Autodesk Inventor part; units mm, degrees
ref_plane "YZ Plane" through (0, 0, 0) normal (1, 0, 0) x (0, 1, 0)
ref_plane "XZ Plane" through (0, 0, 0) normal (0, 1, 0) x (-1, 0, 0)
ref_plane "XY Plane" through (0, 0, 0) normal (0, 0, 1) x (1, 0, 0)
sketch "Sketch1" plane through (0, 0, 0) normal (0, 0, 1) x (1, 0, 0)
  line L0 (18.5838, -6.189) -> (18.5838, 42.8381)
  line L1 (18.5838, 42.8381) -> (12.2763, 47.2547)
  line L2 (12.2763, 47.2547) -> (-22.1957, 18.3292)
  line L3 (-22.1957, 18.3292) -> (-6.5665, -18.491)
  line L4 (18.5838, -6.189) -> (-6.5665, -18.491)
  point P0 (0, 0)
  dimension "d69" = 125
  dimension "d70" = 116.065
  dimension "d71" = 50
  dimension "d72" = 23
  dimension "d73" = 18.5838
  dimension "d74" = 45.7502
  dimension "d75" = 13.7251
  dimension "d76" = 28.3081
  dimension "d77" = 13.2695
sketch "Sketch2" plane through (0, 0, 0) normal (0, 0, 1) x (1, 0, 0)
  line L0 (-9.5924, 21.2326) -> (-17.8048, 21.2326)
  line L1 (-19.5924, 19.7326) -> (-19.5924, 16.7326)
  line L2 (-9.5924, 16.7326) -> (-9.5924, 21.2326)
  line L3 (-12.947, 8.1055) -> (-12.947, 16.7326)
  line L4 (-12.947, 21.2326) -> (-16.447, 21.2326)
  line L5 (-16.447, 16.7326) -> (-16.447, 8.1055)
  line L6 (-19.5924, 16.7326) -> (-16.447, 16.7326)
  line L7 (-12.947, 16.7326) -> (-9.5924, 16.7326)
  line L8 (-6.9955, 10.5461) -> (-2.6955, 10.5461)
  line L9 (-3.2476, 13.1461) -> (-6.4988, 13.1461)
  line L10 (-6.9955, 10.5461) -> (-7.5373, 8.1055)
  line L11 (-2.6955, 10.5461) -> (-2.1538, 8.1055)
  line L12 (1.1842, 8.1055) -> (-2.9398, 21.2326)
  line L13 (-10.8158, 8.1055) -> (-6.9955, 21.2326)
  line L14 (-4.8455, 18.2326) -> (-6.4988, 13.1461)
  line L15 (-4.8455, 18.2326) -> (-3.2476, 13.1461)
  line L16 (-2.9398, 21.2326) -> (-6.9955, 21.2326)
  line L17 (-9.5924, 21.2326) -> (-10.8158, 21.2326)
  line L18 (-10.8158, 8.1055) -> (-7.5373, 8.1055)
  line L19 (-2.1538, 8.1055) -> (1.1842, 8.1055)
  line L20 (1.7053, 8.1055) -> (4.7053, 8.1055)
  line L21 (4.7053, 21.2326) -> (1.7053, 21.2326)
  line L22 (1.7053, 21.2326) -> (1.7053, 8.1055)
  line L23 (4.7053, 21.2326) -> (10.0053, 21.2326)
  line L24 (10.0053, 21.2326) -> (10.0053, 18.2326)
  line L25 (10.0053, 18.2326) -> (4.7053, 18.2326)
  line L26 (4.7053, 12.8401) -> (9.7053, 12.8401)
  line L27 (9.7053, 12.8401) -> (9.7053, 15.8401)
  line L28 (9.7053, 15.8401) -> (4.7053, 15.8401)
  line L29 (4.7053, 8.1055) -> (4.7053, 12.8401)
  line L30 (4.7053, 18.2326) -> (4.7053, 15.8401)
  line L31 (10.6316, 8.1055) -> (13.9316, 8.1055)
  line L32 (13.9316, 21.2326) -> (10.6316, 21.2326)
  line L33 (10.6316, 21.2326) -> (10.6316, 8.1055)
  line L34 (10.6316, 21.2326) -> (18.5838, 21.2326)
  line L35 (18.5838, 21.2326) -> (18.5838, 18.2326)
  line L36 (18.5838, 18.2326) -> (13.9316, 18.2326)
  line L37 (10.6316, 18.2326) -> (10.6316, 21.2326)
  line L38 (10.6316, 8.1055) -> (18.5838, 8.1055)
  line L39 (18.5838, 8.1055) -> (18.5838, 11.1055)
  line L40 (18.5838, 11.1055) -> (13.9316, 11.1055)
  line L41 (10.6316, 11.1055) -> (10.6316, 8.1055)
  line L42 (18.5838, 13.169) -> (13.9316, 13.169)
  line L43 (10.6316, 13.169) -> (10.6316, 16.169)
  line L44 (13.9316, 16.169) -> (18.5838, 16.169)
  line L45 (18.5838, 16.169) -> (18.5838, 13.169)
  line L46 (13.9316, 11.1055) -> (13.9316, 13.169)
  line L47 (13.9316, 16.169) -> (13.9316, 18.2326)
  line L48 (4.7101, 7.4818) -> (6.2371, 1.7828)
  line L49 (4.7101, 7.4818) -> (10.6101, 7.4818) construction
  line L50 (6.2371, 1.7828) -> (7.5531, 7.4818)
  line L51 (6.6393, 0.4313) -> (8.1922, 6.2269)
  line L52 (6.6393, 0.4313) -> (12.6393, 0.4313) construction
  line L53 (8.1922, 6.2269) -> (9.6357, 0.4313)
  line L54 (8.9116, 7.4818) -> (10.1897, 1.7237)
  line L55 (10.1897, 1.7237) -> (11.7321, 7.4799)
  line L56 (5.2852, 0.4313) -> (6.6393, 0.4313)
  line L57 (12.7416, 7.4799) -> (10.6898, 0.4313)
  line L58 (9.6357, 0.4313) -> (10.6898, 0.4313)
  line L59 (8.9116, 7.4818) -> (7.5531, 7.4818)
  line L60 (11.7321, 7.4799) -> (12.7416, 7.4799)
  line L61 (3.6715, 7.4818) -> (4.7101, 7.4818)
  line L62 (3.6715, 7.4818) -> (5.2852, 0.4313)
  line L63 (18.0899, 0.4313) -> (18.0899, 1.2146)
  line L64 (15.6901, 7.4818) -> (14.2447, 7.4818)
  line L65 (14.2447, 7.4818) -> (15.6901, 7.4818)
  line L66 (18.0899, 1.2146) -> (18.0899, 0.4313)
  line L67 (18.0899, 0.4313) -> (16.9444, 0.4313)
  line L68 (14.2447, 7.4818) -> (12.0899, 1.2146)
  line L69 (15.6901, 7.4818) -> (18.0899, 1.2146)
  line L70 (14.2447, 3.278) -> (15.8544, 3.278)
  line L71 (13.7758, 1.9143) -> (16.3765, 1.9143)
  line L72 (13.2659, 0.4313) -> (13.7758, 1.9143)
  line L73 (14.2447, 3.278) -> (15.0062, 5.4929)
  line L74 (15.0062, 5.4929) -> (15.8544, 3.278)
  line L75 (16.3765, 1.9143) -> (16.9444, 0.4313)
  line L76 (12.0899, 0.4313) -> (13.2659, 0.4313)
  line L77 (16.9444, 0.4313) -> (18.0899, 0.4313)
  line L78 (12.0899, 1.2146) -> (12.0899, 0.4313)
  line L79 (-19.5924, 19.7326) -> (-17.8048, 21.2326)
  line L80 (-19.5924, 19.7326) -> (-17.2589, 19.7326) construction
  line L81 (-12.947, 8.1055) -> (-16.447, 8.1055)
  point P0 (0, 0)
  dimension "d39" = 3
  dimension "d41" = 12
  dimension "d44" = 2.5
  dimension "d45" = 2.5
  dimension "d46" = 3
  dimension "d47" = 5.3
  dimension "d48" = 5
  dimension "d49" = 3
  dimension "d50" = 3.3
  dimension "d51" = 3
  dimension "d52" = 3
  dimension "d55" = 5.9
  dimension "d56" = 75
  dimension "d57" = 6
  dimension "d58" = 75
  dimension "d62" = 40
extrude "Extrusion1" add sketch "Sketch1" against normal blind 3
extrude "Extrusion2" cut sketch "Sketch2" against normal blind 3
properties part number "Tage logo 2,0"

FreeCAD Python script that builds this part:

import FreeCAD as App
import Part
import Sketcher

V = App.Vector
Q = App.Units.Quantity


def add_polygon(sketch, points):
    """Adds a closed chain of lines whose ends are joined by coincident constraints."""
    first, n = sketch.GeometryCount, len(points)
    for a, b in zip(points, points[1:] + points[:1]):
        sketch.addGeometry(Part.LineSegment(App.Vector(*a, 0), App.Vector(*b, 0)), False)
    for i in range(n):
        sketch.addConstraint(Sketcher.Constraint("Coincident", first + i, 2, first + (i + 1) % n, 1))

doc = App.newDocument("Part")
body = doc.addObject("PartDesign::Body", "Body")
body.AllowCompound = True

sketch1 = doc.addObject("Sketcher::SketchObject", "Sketch")
body.addObject(sketch1)
sketch1.AttachmentSupport = (doc.XY_Plane, [""])
sketch1.MapMode = "FlatFace"
add_polygon(sketch1, [(-6.5665, -18.491), (18.5838, -6.189), (18.5838, 42.8381), (12.2763, 47.2547), (-22.1957, 18.3292)])
sketch1.addConstraint(Sketcher.Constraint("Vertical", 1))
sketch1.addConstraint(Sketcher.Constraint("Angle", 2, Q("144.9998 deg")))
sketch1.addConstraint(Sketcher.Constraint("Angle", 3, Q("-140 deg")))
sketch1.addConstraint(Sketcher.Constraint("Angle", 4, Q("-67 deg")))
sketch1.addConstraint(Sketcher.Constraint("Distance", 3, 45.0))
sketch1.addConstraint(Sketcher.Constraint("Distance", 4, 40.0))
sketch1.addConstraint(Sketcher.Constraint("Distance", 2, 7.7))
sketch1.addConstraint(Sketcher.Constraint("DistanceX", -1, 1, 0, 2, 18.5838))
sketch1.addConstraint(Sketcher.Constraint("DistanceY", 1, 1, 1, 2, 49.027))
sketch1.addConstraint(Sketcher.Constraint("DistanceY", 0, 2, -1, 1, 6.189))
pad1 = doc.addObject("PartDesign::Pad", "Pad")
body.addObject(pad1)
pad1.Profile = sketch1
pad1.Length = 3
pad1.Reversed = True

sketch2 = doc.addObject("Sketcher::SketchObject", "Sketch001")
body.addObject(sketch2)
sketch2.AttachmentSupport = (doc.XY_Plane, [""])
sketch2.MapMode = "FlatFace"
add_polygon(sketch2, [(-9.5924, 16.7326), (-9.5924, 21.2326), (-17.8048, 21.2326), (-19.5924, 19.7326), (-19.5924, 16.7326), (-16.447, 16.7326), (-16.447, 8.1055), (-12.947, 8.1055), (-12.947, 16.7326)])
add_polygon(sketch2, [(-7.5373, 8.1055), (-6.9955, 10.5461), (-2.6955, 10.5461), (-2.1538, 8.1055), (1.1842, 8.1055), (-2.9398, 21.2326), (-6.9955, 21.2326), (-10.8158, 8.1055)])
add_polygon(sketch2, [(-4.8455, 18.2326), (-3.2476, 13.1461), (-6.4988, 13.1461)])
add_polygon(sketch2, [(1.7053, 21.2326), (1.7053, 8.1055), (4.7053, 8.1055), (4.7053, 12.8401), (9.7053, 12.8401), (9.7053, 15.8401), (4.7053, 15.8401), (4.7053, 18.2326), (10.0053, 18.2326), (10.0053, 21.2326)])
add_polygon(sketch2, [(10.6316, 21.2326), (10.6316, 8.1055), (18.5838, 8.1055), (18.5838, 11.1055), (13.9316, 11.1055), (13.9316, 13.169), (18.5838, 13.169), (18.5838, 16.169), (13.9316, 16.169), (13.9316, 18.2326), (18.5838, 18.2326), (18.5838, 21.2326)])
add_polygon(sketch2, [(6.2371, 1.7828), (4.7101, 7.4818), (3.6715, 7.4818), (5.2852, 0.4313), (6.6393, 0.4313), (8.1922, 6.2269), (9.6357, 0.4313), (10.6898, 0.4313), (12.7416, 7.4799), (11.7321, 7.4799), (10.1897, 1.7237), (8.9116, 7.4818), (7.5531, 7.4818)])
add_polygon(sketch2, [(16.9444, 0.4313), (18.0899, 0.4313), (18.0899, 1.2146), (15.6901, 7.4818), (14.2447, 7.4818), (12.0899, 1.2146), (12.0899, 0.4313), (13.2659, 0.4313), (13.7758, 1.9143), (16.3765, 1.9143)])
add_polygon(sketch2, [(15.8544, 3.278), (14.2447, 3.278), (15.0062, 5.4929)])
sketch2.addConstraint(Sketcher.Constraint("Vertical", 0))
sketch2.addConstraint(Sketcher.Constraint("Horizontal", 1))
sketch2.addConstraint(Sketcher.Constraint("Vertical", 3))
sketch2.addConstraint(Sketcher.Constraint("Horizontal", 4))
sketch2.addConstraint(Sketcher.Constraint("Vertical", 5))
sketch2.addConstraint(Sketcher.Constraint("Horizontal", 6))
sketch2.addConstraint(Sketcher.Constraint("Vertical", 7))
sketch2.addConstraint(Sketcher.Constraint("Horizontal", 8))
sketch2.addConstraint(Sketcher.Constraint("Horizontal", 10))
sketch2.addConstraint(Sketcher.Constraint("Horizontal", 12))
sketch2.addConstraint(Sketcher.Constraint("Horizontal", 14))
sketch2.addConstraint(Sketcher.Constraint("Horizontal", 16))
sketch2.addConstraint(Sketcher.Constraint("Horizontal", 18))
sketch2.addConstraint(Sketcher.Constraint("Vertical", 20))
sketch2.addConstraint(Sketcher.Constraint("Horizontal", 21))
sketch2.addConstraint(Sketcher.Constraint("Vertical", 22))
sketch2.addConstraint(Sketcher.Constraint("Horizontal", 23))
sketch2.addConstraint(Sketcher.Constraint("Vertical", 24))
sketch2.addConstraint(Sketcher.Constraint("Horizontal", 25))
sketch2.addConstraint(Sketcher.Constraint("Vertical", 26))
sketch2.addConstraint(Sketcher.Constraint("Horizontal", 27))
sketch2.addConstraint(Sketcher.Constraint("Vertical", 28))
sketch2.addConstraint(Sketcher.Constraint("Horizontal", 29))
sketch2.addConstraint(Sketcher.Constraint("Vertical", 30))
sketch2.addConstraint(Sketcher.Constraint("Horizontal", 31))
sketch2.addConstraint(Sketcher.Constraint("Vertical", 32))
sketch2.addConstraint(Sketcher.Constraint("Horizontal", 33))
sketch2.addConstraint(Sketcher.Constraint("Vertical", 34))
sketch2.addConstraint(Sketcher.Constraint("Horizontal", 35))
sketch2.addConstraint(Sketcher.Constraint("Vertical", 36))
sketch2.addConstraint(Sketcher.Constraint("Horizontal", 37))
sketch2.addConstraint(Sketcher.Constraint("Vertical", 38))
sketch2.addConstraint(Sketcher.Constraint("Horizontal", 39))
sketch2.addConstraint(Sketcher.Constraint("Vertical", 40))
sketch2.addConstraint(Sketcher.Constraint("Horizontal", 41))
sketch2.addConstraint(Sketcher.Constraint("Horizontal", 43))
sketch2.addConstraint(Sketcher.Constraint("Horizontal", 45))
sketch2.addConstraint(Sketcher.Constraint("Horizontal", 48))
sketch2.addConstraint(Sketcher.Constraint("Horizontal", 50))
sketch2.addConstraint(Sketcher.Constraint("Horizontal", 53))
sketch2.addConstraint(Sketcher.Constraint("Horizontal", 55))
sketch2.addConstraint(Sketcher.Constraint("Vertical", 56))
sketch2.addConstraint(Sketcher.Constraint("Horizontal", 58))
sketch2.addConstraint(Sketcher.Constraint("Vertical", 60))
sketch2.addConstraint(Sketcher.Constraint("Horizontal", 61))
sketch2.addConstraint(Sketcher.Constraint("Horizontal", 63))
sketch2.addConstraint(Sketcher.Constraint("Horizontal", 65))
sketch2.addConstraint(Sketcher.Constraint("Parallel", 13, 17))
sketch2.addConstraint(Sketcher.Constraint("Parallel", 15, 49))
sketch2.addConstraint(Sketcher.Constraint("Parallel", 46, 51))
sketch2.addConstraint(Sketcher.Constraint("Parallel", 11, 52))
sketch2.addConstraint(Sketcher.Constraint("Parallel", 59, 62))
sketch2.addConstraint(Sketcher.Constraint("Parallel", 57, 64))
sketch2.addConstraint(Sketcher.Constraint("Parallel", 62, 66))
sketch2.addConstraint(Sketcher.Constraint("Parallel", 64, 67))
sketch2.addConstraint(Sketcher.Constraint("Horizontal", 4, 2, 7, 2))
sketch2.addConstraint(Sketcher.Constraint("Horizontal", 6, 2, 11, 2))
sketch2.addConstraint(Sketcher.Constraint("Horizontal", 1, 2, 13, 2))
sketch2.addConstraint(Sketcher.Constraint("Horizontal", 12, 2, 15, 2))
sketch2.addConstraint(Sketcher.Constraint("Horizontal", 16, 2, 20, 2))
sketch2.addConstraint(Sketcher.Constraint("Horizontal", 19, 2, 26, 2))
sketch2.addConstraint(Sketcher.Constraint("Horizontal", 14, 2, 28, 2))
sketch2.addConstraint(Sketcher.Constraint("Horizontal", 21, 2, 30, 2))
sketch2.addConstraint(Sketcher.Constraint("Horizontal", 27, 2, 38, 2))
sketch2.addConstraint(Sketcher.Constraint("Horizontal", 29, 2, 40, 2))
sketch2.addConstraint(Sketcher.Constraint("Horizontal", 45, 2, 47, 2))
sketch2.addConstraint(Sketcher.Constraint("Horizontal", 43, 2, 52, 2))
sketch2.addConstraint(Sketcher.Constraint("Horizontal", 48, 2, 55, 2))
sketch2.addConstraint(Sketcher.Constraint("Horizontal", 53, 2, 57, 2))
sketch2.addConstraint(Sketcher.Constraint("Horizontal", 56, 2, 59, 2))
sketch2.addConstraint(Sketcher.Constraint("Horizontal", 55, 2, 60, 2))
sketch2.addConstraint(Sketcher.Constraint("Vertical", 9, 2, 14, 2))
sketch2.addConstraint(Sketcher.Constraint("Vertical", 22, 2, 25, 2))
sketch2.addConstraint(Sketcher.Constraint("Vertical", 32, 2, 35, 2))
sketch2.addConstraint(Sketcher.Constraint("Vertical", 34, 2, 37, 2))
sketch2.addConstraint(Sketcher.Constraint("Vertical", 36, 2, 39, 2))
sketch2.addConstraint(Sketcher.Constraint("Vertical", 58, 2, 65, 2))
sketch2.addConstraint(Sketcher.Constraint("Equal", 21, 3))
sketch2.addConstraint(Sketcher.Constraint("Equal", 3, 24))
sketch2.addConstraint(Sketcher.Constraint("Equal", 24, 28))
sketch2.addConstraint(Sketcher.Constraint("Equal", 28, 32))
sketch2.addConstraint(Sketcher.Constraint("Equal", 32, 36))
sketch2.addConstraint(Sketcher.Constraint("Equal", 34, 38))
sketch2.addConstraint(Sketcher.Constraint("Equal", 9, 11))
sketch2.addConstraint(Sketcher.Constraint("DistanceX", 21, 1, 21, 2, 3.0))
sketch2.addConstraint(Sketcher.Constraint("DistanceX", 23, 1, 23, 2, 5.0))
sketch2.addConstraint(Sketcher.Constraint("Angle", 46, Q("75.0002 deg")))
sketch2.addConstraint(Sketcher.Constraint("Distance", 46, 6.0))
sketch2.addConstraint(Sketcher.Constraint("DistanceX", 27, 1, 27, 2, 5.3))
sketch2.addConstraint(Sketcher.Constraint("Distance", 9, 2.5))
sketch2.addConstraint(Sketcher.Constraint("Distance", 42, 5.9))
sketch2.addConstraint(Sketcher.Constraint("Angle", 2, Q("-139.9995 deg")))
sketch2.addConstraint(Sketcher.Constraint("Angle", 42, Q("104.9996 deg")))
sketch2.addConstraint(Sketcher.Constraint("DistanceX", 6, 1, 6, 2, 3.5))
sketch2.addConstraint(Sketcher.Constraint("DistanceX", 10, 1, 10, 2, 4.3))
sketch2.addConstraint(Sketcher.Constraint("DistanceY", 0, 1, 0, 2, 4.5))
sketch2.addConstraint(Sketcher.Constraint("Angle", 13, Q("107.4406 deg")))
sketch2.addConstraint(Sketcher.Constraint("Angle", 49, Q("73.77 deg")))
sketch2.addConstraint(Sketcher.Constraint("DistanceX", 12, 1, 12, 2, 3.338))
sketch2.addConstraint(Sketcher.Constraint("DistanceX", 45, 1, 45, 2, 1.354))
sketch2.addConstraint(Sketcher.Constraint("DistanceX", 48, 1, 48, 2, 1.054))
sketch2.addConstraint(Sketcher.Constraint("DistanceX", 61, 1, 61, 2, 1.176))
sketch2.addConstraint(Sketcher.Constraint("DistanceY", 5, 2, 5, 1, 8.627))
sketch2.addConstraint(Sketcher.Constraint("DistanceY", -1, 1, 22, 2, 12.84))
sketch2.addConstraint(Sketcher.Constraint("DistanceX", -1, 1, 42, 2, 4.71))
sketch2.addConstraint(Sketcher.Constraint("DistanceY", -1, 1, 49, 2, 7.48))
sketch2.addConstraint(Sketcher.Constraint("DistanceX", -1, 1, 55, 2, 18.09))
sketch2.addConstraint(Sketcher.Constraint("DistanceX", -1, 1, 57, 2, 15.69))
sketch2.addConstraint(Sketcher.Constraint("DistanceX", -1, 1, 59, 2, 12.09))
sketch2.addConstraint(Sketcher.Constraint("Distance", 54, 5.849))
sketch2.addConstraint(Sketcher.Constraint("Distance", 57, 6.711))
sketch2.addConstraint(Sketcher.Constraint("Distance", 64, 1.588))
sketch2.addConstraint(Sketcher.Constraint("DistanceX", 1, 2, 1, 1, 8.2124))
sketch2.addConstraint(Sketcher.Constraint("DistanceX", 4, 1, 4, 2, 3.1454))
sketch2.addConstraint(Sketcher.Constraint("DistanceX", 14, 2, 14, 1, 4.0557))
sketch2.addConstraint(Sketcher.Constraint("DistanceX", 18, 2, 18, 1, 3.2512))
sketch2.addConstraint(Sketcher.Constraint("DistanceX", 31, 1, 31, 2, 7.9522))
sketch2.addConstraint(Sketcher.Constraint("DistanceX", 33, 2, 33, 1, 4.6522))
sketch2.addConstraint(Sketcher.Constraint("DistanceX", 43, 2, 43, 1, 1.0386))
sketch2.addConstraint(Sketcher.Constraint("DistanceX", 50, 2, 50, 1, 1.0095))
sketch2.addConstraint(Sketcher.Constraint("DistanceX", 53, 2, 53, 1, 1.3585))
sketch2.addConstraint(Sketcher.Constraint("DistanceX", 55, 1, 55, 2, 1.1455))
sketch2.addConstraint(Sketcher.Constraint("DistanceX", 58, 2, 58, 1, 1.4454))
sketch2.addConstraint(Sketcher.Constraint("DistanceX", 65, 2, 65, 1, 1.6097))
sketch2.addConstraint(Sketcher.Constraint("DistanceY", 22, 1, 22, 2, 4.7346))
sketch2.addConstraint(Sketcher.Constraint("DistanceY", 56, 1, 56, 2, 0.7833))
sketch2.addConstraint(Sketcher.Constraint("DistanceX", 4, 2, -1, 1, 16.447))
sketch2.addConstraint(Sketcher.Constraint("DistanceY", -1, 1, 17, 2, 13.146))
sketch2.addConstraint(Sketcher.Constraint("DistanceY", -1, 1, 46, 2, 6.227))
sketch2.addConstraint(Sketcher.Constraint("DistanceX", -1, 1, 50, 2, 11.732))
sketch2.addConstraint(Sketcher.Constraint("DistanceY", -1, 1, 65, 2, 3.278))
sketch2.addConstraint(Sketcher.Constraint("Distance", 44, 7.2328))
sketch2.addConstraint(Sketcher.Constraint("DistanceX", 9, 2, -1, 1, 6.9955))
sketch2.addConstraint(Sketcher.Constraint("DistanceX", 17, 2, -1, 1, 3.2476))
sketch2.addConstraint(Sketcher.Constraint("DistanceX", -1, 1, 20, 2, 1.7053))
sketch2.addConstraint(Sketcher.Constraint("DistanceX", -1, 1, 30, 2, 10.6316))
pocket1 = doc.addObject("PartDesign::Pocket", "Pocket")
body.addObject(pocket1)
pocket1.Profile = sketch2
pocket1.Length = 3

doc.recompute()
